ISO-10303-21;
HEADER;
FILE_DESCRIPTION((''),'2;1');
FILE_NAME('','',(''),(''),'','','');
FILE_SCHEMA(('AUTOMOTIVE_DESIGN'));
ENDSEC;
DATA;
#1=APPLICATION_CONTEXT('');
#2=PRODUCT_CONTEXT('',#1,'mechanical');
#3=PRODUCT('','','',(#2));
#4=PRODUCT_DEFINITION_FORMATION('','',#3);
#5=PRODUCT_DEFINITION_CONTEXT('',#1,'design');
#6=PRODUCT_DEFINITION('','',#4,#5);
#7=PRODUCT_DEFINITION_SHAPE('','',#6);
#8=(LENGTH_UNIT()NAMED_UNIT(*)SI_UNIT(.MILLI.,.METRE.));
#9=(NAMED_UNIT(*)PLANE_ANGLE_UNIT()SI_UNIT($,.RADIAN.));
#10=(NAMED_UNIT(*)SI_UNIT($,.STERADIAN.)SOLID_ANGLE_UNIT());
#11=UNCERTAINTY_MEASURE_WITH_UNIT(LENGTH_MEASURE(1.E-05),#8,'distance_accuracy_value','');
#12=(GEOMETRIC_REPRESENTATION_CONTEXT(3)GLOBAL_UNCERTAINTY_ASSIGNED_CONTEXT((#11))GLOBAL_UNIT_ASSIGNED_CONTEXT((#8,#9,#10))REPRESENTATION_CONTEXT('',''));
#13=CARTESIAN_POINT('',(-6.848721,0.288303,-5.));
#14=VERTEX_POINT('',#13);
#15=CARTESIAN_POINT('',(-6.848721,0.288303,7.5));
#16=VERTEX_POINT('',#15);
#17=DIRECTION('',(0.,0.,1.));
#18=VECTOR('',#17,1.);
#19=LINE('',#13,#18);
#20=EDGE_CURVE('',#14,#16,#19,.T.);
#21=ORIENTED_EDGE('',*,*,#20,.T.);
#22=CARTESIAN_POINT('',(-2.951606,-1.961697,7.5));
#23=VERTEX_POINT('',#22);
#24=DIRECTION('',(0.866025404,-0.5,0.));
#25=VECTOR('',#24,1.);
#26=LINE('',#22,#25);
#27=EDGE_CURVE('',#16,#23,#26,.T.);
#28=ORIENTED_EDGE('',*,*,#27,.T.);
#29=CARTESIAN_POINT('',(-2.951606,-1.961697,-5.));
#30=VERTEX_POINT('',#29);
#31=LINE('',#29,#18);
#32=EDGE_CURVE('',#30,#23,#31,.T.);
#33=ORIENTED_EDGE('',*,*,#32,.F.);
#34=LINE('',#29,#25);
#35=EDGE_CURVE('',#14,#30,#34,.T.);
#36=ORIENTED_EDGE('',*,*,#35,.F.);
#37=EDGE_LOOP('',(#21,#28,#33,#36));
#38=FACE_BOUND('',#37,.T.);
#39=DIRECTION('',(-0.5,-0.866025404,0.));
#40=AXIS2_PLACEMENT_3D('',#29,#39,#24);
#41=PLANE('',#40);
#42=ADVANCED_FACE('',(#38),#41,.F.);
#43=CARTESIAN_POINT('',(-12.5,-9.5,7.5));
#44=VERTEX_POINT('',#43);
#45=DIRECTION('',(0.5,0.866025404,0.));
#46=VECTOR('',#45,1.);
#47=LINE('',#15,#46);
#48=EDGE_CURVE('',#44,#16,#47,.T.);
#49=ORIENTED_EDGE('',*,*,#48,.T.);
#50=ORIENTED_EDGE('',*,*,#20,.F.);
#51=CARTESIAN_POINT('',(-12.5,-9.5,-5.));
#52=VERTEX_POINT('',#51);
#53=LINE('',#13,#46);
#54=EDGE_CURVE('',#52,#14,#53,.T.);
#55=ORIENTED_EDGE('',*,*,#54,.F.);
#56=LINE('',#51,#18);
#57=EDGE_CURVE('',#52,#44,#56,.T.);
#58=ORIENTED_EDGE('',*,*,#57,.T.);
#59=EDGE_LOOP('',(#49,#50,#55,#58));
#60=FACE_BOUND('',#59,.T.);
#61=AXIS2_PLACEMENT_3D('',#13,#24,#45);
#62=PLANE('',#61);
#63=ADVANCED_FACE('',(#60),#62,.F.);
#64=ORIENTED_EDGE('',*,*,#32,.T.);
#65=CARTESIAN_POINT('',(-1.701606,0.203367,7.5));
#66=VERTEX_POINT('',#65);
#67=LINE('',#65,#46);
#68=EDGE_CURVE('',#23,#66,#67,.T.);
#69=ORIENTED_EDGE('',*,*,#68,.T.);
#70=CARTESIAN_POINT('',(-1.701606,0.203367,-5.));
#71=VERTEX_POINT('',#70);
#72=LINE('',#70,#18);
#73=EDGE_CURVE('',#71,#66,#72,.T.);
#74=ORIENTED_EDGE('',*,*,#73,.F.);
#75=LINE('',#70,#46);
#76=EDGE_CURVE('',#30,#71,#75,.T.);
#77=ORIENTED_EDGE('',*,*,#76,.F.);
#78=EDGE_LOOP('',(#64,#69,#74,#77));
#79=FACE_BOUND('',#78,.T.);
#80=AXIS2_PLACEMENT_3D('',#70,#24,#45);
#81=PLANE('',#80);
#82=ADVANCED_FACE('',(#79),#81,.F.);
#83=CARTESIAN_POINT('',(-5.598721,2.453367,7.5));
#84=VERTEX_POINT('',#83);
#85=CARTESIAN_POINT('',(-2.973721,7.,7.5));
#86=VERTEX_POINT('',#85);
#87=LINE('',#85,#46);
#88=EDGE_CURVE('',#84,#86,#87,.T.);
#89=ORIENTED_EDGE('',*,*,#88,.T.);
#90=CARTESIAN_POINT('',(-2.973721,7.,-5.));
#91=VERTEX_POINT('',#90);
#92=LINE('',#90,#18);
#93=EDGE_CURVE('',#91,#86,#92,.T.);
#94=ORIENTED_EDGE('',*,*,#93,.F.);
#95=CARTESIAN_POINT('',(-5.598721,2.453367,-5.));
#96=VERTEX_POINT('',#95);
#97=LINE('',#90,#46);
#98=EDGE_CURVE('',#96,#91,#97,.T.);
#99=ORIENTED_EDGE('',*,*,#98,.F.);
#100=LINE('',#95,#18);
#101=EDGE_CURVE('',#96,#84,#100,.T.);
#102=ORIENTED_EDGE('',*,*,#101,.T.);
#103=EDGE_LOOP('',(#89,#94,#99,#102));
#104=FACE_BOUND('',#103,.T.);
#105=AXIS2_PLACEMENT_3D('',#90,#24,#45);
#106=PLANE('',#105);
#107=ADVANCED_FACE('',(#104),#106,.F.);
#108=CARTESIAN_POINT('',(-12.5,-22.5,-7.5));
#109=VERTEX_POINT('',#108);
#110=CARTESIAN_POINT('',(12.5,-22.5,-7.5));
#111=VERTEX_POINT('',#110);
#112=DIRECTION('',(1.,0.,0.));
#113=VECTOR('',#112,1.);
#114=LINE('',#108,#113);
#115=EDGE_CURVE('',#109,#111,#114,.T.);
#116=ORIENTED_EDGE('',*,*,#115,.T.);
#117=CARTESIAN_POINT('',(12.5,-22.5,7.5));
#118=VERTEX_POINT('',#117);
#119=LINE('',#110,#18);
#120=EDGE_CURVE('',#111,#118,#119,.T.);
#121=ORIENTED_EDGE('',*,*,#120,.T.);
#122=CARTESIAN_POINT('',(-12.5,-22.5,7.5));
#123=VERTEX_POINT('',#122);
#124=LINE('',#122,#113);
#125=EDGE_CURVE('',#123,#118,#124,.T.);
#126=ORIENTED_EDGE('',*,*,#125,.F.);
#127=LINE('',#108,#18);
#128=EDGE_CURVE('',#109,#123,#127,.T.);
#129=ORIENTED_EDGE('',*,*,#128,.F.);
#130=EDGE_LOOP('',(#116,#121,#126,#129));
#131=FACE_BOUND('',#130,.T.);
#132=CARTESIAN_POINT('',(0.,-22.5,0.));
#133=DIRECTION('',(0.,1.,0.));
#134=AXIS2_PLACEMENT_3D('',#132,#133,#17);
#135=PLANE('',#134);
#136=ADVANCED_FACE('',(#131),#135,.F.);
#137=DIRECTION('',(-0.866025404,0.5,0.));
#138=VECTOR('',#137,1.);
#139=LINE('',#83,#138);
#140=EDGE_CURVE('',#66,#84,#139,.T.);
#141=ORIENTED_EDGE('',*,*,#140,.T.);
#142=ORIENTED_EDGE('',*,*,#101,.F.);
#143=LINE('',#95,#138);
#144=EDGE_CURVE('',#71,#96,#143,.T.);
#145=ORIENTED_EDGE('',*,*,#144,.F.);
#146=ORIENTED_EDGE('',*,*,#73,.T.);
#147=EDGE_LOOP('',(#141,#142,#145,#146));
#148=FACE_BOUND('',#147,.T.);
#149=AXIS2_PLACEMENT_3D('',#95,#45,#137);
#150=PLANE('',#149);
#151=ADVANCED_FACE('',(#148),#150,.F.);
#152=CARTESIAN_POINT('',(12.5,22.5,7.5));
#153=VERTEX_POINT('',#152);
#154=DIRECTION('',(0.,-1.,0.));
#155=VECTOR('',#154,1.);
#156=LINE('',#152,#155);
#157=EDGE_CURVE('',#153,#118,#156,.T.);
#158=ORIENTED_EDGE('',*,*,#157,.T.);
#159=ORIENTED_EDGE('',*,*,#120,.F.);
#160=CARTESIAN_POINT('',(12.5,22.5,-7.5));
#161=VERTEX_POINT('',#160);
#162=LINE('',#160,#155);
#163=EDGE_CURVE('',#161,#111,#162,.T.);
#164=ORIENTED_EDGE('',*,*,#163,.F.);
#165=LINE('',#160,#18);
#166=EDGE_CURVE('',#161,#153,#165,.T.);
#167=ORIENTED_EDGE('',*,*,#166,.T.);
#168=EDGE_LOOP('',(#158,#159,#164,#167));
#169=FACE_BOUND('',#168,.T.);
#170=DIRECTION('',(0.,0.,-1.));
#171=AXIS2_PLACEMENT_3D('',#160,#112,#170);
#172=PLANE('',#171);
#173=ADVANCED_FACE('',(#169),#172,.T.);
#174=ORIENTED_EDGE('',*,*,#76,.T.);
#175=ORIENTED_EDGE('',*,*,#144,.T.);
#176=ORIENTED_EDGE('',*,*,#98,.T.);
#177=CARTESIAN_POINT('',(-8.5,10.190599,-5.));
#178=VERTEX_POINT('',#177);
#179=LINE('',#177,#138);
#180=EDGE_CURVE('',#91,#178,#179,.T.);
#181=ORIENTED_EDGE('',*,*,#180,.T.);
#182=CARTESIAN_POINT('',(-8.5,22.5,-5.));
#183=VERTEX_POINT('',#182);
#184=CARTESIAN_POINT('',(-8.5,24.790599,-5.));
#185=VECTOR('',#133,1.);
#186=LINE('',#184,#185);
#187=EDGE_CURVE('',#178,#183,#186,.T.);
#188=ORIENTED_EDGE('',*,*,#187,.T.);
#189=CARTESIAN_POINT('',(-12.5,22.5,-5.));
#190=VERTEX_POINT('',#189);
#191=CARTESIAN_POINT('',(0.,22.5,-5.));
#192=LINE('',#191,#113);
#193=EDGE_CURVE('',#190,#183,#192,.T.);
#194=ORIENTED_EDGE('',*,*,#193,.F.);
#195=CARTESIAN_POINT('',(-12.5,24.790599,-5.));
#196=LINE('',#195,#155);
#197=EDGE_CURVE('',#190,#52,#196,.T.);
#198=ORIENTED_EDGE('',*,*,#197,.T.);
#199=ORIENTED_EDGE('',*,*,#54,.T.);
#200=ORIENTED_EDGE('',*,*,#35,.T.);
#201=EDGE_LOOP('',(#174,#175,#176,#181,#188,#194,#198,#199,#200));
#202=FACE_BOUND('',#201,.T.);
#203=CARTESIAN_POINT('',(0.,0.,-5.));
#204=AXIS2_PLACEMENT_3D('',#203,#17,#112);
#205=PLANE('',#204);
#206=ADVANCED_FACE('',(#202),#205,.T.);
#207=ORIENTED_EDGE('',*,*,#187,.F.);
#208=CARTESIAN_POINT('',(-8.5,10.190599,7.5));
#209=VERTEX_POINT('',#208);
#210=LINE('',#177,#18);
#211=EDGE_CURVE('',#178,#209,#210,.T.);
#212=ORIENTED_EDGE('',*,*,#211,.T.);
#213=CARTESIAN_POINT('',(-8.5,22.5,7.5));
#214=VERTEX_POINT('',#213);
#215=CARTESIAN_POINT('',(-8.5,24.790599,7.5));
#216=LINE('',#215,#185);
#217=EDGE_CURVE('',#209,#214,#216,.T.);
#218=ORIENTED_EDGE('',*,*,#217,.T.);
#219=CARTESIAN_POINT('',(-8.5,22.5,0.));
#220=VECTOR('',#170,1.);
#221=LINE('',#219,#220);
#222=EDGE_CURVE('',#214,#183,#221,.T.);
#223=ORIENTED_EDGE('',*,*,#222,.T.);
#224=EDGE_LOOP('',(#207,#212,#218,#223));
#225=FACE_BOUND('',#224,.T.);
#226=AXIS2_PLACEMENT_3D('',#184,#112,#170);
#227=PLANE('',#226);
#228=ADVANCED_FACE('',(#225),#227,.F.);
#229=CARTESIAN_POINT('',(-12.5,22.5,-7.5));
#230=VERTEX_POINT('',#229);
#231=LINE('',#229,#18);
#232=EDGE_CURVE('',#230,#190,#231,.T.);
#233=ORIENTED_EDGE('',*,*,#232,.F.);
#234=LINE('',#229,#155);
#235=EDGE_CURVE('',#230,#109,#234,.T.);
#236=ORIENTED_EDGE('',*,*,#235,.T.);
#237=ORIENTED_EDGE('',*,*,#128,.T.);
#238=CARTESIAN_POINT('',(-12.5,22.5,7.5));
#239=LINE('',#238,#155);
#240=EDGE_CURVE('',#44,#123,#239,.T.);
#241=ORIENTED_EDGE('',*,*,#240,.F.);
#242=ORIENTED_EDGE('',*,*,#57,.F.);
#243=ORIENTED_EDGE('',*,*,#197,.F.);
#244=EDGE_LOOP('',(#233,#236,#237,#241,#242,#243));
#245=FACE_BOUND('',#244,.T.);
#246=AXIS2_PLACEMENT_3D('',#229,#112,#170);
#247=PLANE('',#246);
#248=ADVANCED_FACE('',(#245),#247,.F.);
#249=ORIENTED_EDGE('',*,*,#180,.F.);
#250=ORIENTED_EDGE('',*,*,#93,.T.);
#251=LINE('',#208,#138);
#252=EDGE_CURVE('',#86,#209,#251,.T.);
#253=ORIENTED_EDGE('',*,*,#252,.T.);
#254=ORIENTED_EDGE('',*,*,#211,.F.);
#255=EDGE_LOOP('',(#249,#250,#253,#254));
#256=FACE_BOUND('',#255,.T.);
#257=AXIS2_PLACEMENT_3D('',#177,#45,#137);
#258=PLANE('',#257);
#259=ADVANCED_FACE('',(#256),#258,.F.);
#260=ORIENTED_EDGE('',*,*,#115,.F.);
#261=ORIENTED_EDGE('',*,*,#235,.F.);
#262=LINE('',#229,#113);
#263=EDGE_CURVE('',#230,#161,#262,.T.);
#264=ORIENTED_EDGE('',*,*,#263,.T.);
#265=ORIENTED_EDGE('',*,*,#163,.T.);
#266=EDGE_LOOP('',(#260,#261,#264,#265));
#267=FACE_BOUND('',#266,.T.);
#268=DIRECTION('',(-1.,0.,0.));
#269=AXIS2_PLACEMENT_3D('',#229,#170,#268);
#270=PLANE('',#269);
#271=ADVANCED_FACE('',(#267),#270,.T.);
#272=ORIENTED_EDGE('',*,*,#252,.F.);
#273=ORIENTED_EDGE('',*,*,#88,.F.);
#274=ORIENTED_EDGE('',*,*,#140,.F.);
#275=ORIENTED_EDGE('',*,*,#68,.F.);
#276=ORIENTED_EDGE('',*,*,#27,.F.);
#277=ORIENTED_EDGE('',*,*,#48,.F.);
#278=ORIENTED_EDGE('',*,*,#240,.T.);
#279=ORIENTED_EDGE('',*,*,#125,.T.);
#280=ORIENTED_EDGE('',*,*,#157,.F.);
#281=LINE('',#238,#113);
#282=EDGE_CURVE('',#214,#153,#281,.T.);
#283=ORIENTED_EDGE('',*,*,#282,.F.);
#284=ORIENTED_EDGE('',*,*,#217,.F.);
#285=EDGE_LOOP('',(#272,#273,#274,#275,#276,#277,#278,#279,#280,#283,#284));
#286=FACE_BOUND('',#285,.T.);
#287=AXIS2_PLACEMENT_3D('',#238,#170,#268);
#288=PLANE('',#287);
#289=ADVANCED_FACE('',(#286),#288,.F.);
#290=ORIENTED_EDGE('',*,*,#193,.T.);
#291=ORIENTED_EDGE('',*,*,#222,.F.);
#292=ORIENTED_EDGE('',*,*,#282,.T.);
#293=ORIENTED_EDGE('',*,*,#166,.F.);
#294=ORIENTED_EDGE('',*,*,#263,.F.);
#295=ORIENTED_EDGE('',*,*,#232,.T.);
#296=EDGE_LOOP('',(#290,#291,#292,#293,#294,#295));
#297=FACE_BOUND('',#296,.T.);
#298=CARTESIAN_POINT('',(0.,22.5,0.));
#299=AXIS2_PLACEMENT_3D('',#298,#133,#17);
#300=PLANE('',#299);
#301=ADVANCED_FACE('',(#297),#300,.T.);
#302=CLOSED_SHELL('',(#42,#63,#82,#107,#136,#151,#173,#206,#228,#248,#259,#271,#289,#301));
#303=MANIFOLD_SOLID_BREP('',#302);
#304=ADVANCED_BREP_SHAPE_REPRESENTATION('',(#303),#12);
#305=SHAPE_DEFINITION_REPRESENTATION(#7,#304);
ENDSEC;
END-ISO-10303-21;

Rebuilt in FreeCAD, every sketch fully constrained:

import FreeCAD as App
import Part
import Sketcher

V = App.Vector
Q = App.Units.Quantity

doc = App.newDocument("Part")
params = doc.addObject("Spreadsheet::Sheet", "Params")
for row, (alias, value) in enumerate([
    ("sketch1_width", "25 mm"),
    ("sketch1_height", "15 mm"),
    ("pad1_length", "45 mm"),
    ("sketch2_width", "4 mm"),
    ("sketch2_height", "14.6 mm"),
    ("sketch2_length", "4.5 mm"),
    ("sketch2_length2", "2.5 mm"),
    ("sketch2_length3", "5.25 mm"),
    ("pocket1_length", "12.5 mm"),
], start=1):
    params.set(f"A{row}", alias)
    params.set(f"B{row}", "=" + value)
    params.setAlias(f"B{row}", alias)

body = doc.addObject("PartDesign::Body", "Body")

# Sketch on XZ plane
sketch1 = body.newObject("Sketcher::SketchObject", "Sketch")
sketch1.AttachmentSupport = (doc.getObject("XZ_Plane"), [""])
sketch1.MapMode = "FlatFace"
sketch1.addGeometry(Part.LineSegment(V(-12, -8, 0), V(-12, 8, 0)), False)
sketch1.addGeometry(Part.LineSegment(V(-12, 8, 0), V(12, 8, 0)), False)
sketch1.addGeometry(Part.LineSegment(V(12, 8, 0), V(12, -8, 0)), False)
sketch1.addGeometry(Part.LineSegment(V(12, -8, 0), V(-12, -8, 0)), False)
sketch1.addConstraint(Sketcher.Constraint("Coincident", 0, 2, 1, 1))
sketch1.addConstraint(Sketcher.Constraint("Coincident", 1, 2, 2, 1))
sketch1.addConstraint(Sketcher.Constraint("Coincident", 2, 2, 3, 1))
sketch1.addConstraint(Sketcher.Constraint("Coincident", 3, 2, 0, 1))
sketch1.addConstraint(Sketcher.Constraint("Vertical", 0))
sketch1.addConstraint(Sketcher.Constraint("Horizontal", 1))
sketch1.addConstraint(Sketcher.Constraint("Vertical", 2))
sketch1.addConstraint(Sketcher.Constraint("Horizontal", 3))
sketch1.addConstraint(Sketcher.Constraint("Symmetric", 0, 2, 2, 2, -1, 1))
sketch1.addConstraint(Sketcher.Constraint("DistanceX", 1, 1, 1, 2, Q("25 mm")))
sketch1.addConstraint(Sketcher.Constraint("DistanceY", 0, 1, 0, 2, Q("15 mm")))
sketch1.setExpression("Constraints[9]", "Params.sketch1_width")
sketch1.setExpression("Constraints[10]", "Params.sketch1_height")
pad1 = body.newObject("PartDesign::Pad", "Pad")
pad1.Profile = sketch1
pad1.setExpression("Length", "Params.pad1_length")
pad1.Midplane = True

# Sketch on XY plane
sketch2 = body.newObject("Sketcher::SketchObject", "Sketch001")
sketch2.AttachmentSupport = (doc.getObject("XY_Plane"), [""])
sketch2.MapMode = "FlatFace"
sketch2.AttachmentOffset = App.Placement(V(0, 0, 7.5), App.Rotation())
sketch2.addGeometry(Part.LineSegment(V(-3, 7, 0), V(-8.5, 10.2, 0)), False)
sketch2.addGeometry(Part.LineSegment(V(-8.5, 10.2, 0), V(-8.5, 24.8, 0)), False)
sketch2.addGeometry(Part.LineSegment(V(-8.5, 24.8, 0), V(-12.5, 24.8, 0)), False)
sketch2.addGeometry(Part.LineSegment(V(-12.5, 24.8, 0), V(-12.5, -9.5, 0)), False)
sketch2.addGeometry(Part.LineSegment(V(-12.5, -9.5, 0), V(-6.8, 0.3, 0)), False)
sketch2.addGeometry(Part.LineSegment(V(-6.8, 0.3, 0), V(-3, -2, 0)), False)
sketch2.addGeometry(Part.LineSegment(V(-3, -2, 0), V(-1.7, 0.2, 0)), False)
sketch2.addGeometry(Part.LineSegment(V(-1.7, 0.2, 0), V(-5.6, 2.5, 0)), False)
sketch2.addGeometry(Part.LineSegment(V(-5.6, 2.5, 0), V(-3, 7, 0)), False)
sketch2.addConstraint(Sketcher.Constraint("Coincident", 0, 2, 1, 1))
sketch2.addConstraint(Sketcher.Constraint("Coincident", 1, 2, 2, 1))
sketch2.addConstraint(Sketcher.Constraint("Coincident", 2, 2, 3, 1))
sketch2.addConstraint(Sketcher.Constraint("Coincident", 3, 2, 4, 1))
sketch2.addConstraint(Sketcher.Constraint("Coincident", 4, 2, 5, 1))
sketch2.addConstraint(Sketcher.Constraint("Coincident", 5, 2, 6, 1))
sketch2.addConstraint(Sketcher.Constraint("Coincident", 6, 2, 7, 1))
sketch2.addConstraint(Sketcher.Constraint("Coincident", 7, 2, 8, 1))
sketch2.addConstraint(Sketcher.Constraint("Coincident", 8, 2, 0, 1))
sketch2.addConstraint(Sketcher.Constraint("Vertical", 1))
sketch2.addConstraint(Sketcher.Constraint("Horizontal", 2))
sketch2.addConstraint(Sketcher.Constraint("Vertical", 3))
sketch2.addConstraint(Sketcher.Constraint("Perpendicular", 0, 4))
sketch2.addConstraint(Sketcher.Constraint("Perpendicular", 4, 5))
sketch2.addConstraint(Sketcher.Constraint("Perpendicular", 5, 6))
sketch2.addConstraint(Sketcher.Constraint("Perpendicular", 6, 7))
sketch2.addConstraint(Sketcher.Constraint("Perpendicular", 7, 8))
sketch2.addConstraint(Sketcher.Constraint("Equal", 5, 7))
sketch2.addConstraint(Sketcher.Constraint("DistanceX", 2, 2, 2, 1, Q("4 mm")))
sketch2.addConstraint(Sketcher.Constraint("Angle", 0, Q("150 deg")))
sketch2.addConstraint(Sketcher.Constraint("DistanceY", 1, 1, 1, 2, Q("14.6 mm")))
sketch2.addConstraint(Sketcher.Constraint("DistanceY", -1, 1, 8, 2, Q("7 mm")))
sketch2.addConstraint(Sketcher.Constraint("Distance", 5, Q("4.5 mm")))
sketch2.addConstraint(Sketcher.Constraint("Distance", 6, Q("2.5 mm")))
sketch2.addConstraint(Sketcher.Constraint("DistanceX", 0, 2, -1, 1, Q("8.5 mm")))
sketch2.addConstraint(Sketcher.Constraint("DistanceY", 3, 2, -1, 1, Q("9.5 mm")))
sketch2.addConstraint(Sketcher.Constraint("Distance", 8, Q("5.25 mm")))
sketch2.setExpression("Constraints[18]", "Params.sketch2_width")
sketch2.setExpression("Constraints[20]", "Params.sketch2_height")
sketch2.setExpression("Constraints[22]", "Params.sketch2_length")
sketch2.setExpression("Constraints[23]", "Params.sketch2_length2")
sketch2.setExpression("Constraints[26]", "Params.sketch2_length3")
pocket1 = body.newObject("PartDesign::Pocket", "Pocket")
pocket1.Profile = sketch2
pocket1.setExpression("Length", "Params.pocket1_length")

doc.recompute()
